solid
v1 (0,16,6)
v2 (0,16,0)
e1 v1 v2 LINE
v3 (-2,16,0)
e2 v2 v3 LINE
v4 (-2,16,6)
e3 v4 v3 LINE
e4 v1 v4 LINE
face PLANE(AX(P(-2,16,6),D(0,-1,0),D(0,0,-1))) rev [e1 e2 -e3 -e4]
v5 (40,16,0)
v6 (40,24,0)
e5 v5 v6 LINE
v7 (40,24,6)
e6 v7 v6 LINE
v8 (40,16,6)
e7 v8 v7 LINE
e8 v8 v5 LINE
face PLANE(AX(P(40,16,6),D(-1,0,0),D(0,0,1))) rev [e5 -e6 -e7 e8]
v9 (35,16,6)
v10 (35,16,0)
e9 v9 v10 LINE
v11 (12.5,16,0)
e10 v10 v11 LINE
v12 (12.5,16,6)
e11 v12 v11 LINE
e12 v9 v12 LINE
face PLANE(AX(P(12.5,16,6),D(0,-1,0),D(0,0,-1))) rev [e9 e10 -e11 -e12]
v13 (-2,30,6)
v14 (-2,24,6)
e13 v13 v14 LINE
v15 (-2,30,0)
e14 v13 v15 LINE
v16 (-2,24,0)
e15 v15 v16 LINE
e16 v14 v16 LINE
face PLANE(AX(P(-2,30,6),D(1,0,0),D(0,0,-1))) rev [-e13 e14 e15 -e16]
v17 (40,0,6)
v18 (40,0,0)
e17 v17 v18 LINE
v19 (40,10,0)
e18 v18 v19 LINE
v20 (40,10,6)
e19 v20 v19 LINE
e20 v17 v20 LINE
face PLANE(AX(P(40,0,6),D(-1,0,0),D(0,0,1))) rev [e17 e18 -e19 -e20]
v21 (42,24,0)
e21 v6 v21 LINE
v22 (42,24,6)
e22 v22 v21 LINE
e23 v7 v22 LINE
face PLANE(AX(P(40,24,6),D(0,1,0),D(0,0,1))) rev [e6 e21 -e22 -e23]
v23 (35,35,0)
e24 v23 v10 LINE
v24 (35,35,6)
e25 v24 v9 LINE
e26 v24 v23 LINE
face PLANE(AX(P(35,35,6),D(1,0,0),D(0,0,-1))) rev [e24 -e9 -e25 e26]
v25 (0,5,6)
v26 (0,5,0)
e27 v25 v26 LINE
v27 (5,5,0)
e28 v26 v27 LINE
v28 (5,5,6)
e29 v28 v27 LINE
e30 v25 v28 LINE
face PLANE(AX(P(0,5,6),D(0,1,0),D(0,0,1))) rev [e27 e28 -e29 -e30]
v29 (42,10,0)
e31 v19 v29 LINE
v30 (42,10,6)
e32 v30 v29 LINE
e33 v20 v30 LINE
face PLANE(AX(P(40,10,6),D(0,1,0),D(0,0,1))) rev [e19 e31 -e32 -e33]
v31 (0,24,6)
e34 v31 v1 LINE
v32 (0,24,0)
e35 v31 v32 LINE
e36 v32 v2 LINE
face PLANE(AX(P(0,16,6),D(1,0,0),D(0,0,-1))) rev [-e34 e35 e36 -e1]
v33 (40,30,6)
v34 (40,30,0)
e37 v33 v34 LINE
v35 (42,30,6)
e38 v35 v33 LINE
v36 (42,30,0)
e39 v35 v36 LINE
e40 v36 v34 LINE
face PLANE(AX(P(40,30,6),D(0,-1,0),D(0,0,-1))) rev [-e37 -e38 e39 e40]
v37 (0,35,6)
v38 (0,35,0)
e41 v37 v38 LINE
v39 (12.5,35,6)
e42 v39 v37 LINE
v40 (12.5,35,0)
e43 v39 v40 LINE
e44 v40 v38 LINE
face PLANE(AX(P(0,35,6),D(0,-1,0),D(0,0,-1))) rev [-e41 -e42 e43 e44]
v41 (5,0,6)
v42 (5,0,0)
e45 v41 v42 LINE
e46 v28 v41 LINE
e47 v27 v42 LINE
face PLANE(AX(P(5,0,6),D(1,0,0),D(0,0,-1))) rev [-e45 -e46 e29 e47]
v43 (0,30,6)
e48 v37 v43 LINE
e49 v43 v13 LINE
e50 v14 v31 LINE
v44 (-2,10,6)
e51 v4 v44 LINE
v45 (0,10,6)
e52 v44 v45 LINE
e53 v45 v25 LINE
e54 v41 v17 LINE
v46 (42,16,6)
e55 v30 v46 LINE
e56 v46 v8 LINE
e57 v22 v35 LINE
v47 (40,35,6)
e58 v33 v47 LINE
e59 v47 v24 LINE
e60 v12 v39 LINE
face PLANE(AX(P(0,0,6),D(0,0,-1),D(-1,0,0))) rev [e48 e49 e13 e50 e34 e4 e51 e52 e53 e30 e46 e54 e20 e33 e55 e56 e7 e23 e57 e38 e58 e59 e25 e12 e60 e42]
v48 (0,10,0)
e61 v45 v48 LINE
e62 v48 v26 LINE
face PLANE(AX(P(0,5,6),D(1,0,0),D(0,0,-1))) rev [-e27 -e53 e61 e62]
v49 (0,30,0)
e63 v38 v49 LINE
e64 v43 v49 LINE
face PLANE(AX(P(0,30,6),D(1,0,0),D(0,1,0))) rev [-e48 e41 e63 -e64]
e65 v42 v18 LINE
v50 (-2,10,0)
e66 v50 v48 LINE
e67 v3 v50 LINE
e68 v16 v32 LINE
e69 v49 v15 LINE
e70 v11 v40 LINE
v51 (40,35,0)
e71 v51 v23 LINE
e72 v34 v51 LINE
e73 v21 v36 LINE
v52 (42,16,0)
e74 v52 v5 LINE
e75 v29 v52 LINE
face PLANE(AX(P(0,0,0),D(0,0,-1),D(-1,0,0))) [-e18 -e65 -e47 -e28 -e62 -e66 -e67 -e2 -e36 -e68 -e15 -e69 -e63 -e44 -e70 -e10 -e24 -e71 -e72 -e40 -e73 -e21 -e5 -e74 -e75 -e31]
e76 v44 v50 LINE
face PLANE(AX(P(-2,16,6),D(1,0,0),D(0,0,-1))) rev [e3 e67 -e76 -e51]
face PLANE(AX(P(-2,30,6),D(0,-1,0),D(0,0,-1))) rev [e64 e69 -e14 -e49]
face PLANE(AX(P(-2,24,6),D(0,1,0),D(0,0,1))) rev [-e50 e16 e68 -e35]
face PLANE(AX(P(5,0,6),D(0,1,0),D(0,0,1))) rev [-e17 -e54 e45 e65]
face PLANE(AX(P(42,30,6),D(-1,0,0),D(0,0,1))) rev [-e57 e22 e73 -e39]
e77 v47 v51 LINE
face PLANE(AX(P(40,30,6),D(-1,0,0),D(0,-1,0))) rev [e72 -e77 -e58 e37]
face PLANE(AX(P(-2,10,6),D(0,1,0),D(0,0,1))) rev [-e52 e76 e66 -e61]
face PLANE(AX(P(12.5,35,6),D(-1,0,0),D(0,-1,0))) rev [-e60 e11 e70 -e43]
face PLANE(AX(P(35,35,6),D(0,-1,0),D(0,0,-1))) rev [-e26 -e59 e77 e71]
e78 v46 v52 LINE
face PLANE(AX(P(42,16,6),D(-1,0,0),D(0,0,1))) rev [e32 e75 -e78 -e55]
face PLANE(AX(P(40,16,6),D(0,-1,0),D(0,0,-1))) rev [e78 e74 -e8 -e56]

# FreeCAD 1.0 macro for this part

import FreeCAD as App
import Part
import Sketcher

V = App.Vector

doc = App.newDocument("Part")
body = doc.addObject("PartDesign::Body", "Body")

# Sketch on XY plane
sketch1 = body.newObject("Sketcher::SketchObject", "Sketch")
sketch1.AttachmentSupport = (doc.getObject("XY_Plane"), [""])
sketch1.MapMode = "FlatFace"
sketch1.addGeometry([
    Part.LineSegment(V(40, 35, 0), V(35, 35, 0)),  # 0
    Part.LineSegment(V(35, 35, 0), V(35, 16, 0)),  # 1
    Part.LineSegment(V(35, 16, 0), V(12.5, 16, 0)),  # 2
    Part.LineSegment(V(12.5, 16, 0), V(12.5, 35, 0)),  # 3
    Part.LineSegment(V(12.5, 35, 0), V(0, 35, 0)),  # 4
    Part.LineSegment(V(0, 35, 0), V(0, 30, 0)),  # 5
    Part.LineSegment(V(0, 30, 0), V(-2, 30, 0)),  # 6
    Part.LineSegment(V(-2, 30, 0), V(-2, 24, 0)),  # 7
    Part.LineSegment(V(-2, 24, 0), V(0, 24, 0)),  # 8
    Part.LineSegment(V(0, 24, 0), V(0, 16, 0)),  # 9
    Part.LineSegment(V(0, 16, 0), V(-2, 16, 0)),  # 10
    Part.LineSegment(V(-2, 16, 0), V(-2, 10, 0)),  # 11
    Part.LineSegment(V(-2, 10, 0), V(0, 10, 0)),  # 12
    Part.LineSegment(V(0, 10, 0), V(0, 5, 0)),  # 13
    Part.LineSegment(V(0, 5, 0), V(5, 5, 0)),  # 14
    Part.LineSegment(V(5, 5, 0), V(5, 0, 0)),  # 15
    Part.LineSegment(V(5, 0, 0), V(40, 0, 0)),  # 16
    Part.LineSegment(V(40, 0, 0), V(40, 10, 0)),  # 17
    Part.LineSegment(V(40, 10, 0), V(42, 10, 0)),  # 18
    Part.LineSegment(V(42, 10, 0), V(42, 16, 0)),  # 19
    Part.LineSegment(V(42, 16, 0), V(40, 16, 0)),  # 20
    Part.LineSegment(V(40, 16, 0), V(40, 24, 0)),  # 21
    Part.LineSegment(V(40, 24, 0), V(42, 24, 0)),  # 22
    Part.LineSegment(V(42, 24, 0), V(42, 30, 0)),  # 23
    Part.LineSegment(V(42, 30, 0), V(40, 30, 0)),  # 24
    Part.LineSegment(V(40, 30, 0), V(40, 35, 0)),  # 25
], False)
sketch1.addConstraint([
    Sketcher.Constraint("Coincident", 0, 2, 1, 1),
    Sketcher.Constraint("Coincident", 1, 2, 2, 1),
    Sketcher.Constraint("Coincident", 2, 2, 3, 1),
    Sketcher.Constraint("Coincident", 3, 2, 4, 1),
    Sketcher.Constraint("Coincident", 4, 2, 5, 1),
    Sketcher.Constraint("Coincident", 5, 2, 6, 1),
    Sketcher.Constraint("Coincident", 6, 2, 7, 1),
    Sketcher.Constraint("Coincident", 7, 2, 8, 1),
    Sketcher.Constraint("Coincident", 8, 2, 9, 1),
    Sketcher.Constraint("Coincident", 9, 2, 10, 1),
    Sketcher.Constraint("Coincident", 10, 2, 11, 1),
    Sketcher.Constraint("Coincident", 11, 2, 12, 1),
    Sketcher.Constraint("Coincident", 12, 2, 13, 1),
    Sketcher.Constraint("Coincident", 13, 2, 14, 1),
    Sketcher.Constraint("Coincident", 14, 2, 15, 1),
    Sketcher.Constraint("Coincident", 15, 2, 16, 1),
    Sketcher.Constraint("Coincident", 16, 2, 17, 1),
    Sketcher.Constraint("Coincident", 17, 2, 18, 1),
    Sketcher.Constraint("Coincident", 18, 2, 19, 1),
    Sketcher.Constraint("Coincident", 19, 2, 20, 1),
    Sketcher.Constraint("Coincident", 20, 2, 21, 1),
    Sketcher.Constraint("Coincident", 21, 2, 22, 1),
    Sketcher.Constraint("Coincident", 22, 2, 23, 1),
    Sketcher.Constraint("Coincident", 23, 2, 24, 1),
    Sketcher.Constraint("Coincident", 24, 2, 25, 1),
    Sketcher.Constraint("Coincident", 25, 2, 0, 1),
    Sketcher.Constraint("Horizontal", 0),
    Sketcher.Constraint("Vertical", 1),
    Sketcher.Constraint("Horizontal", 2),
    Sketcher.Constraint("Vertical", 3),
    Sketcher.Constraint("Horizontal", 4),
    Sketcher.Constraint("Vertical", 5),
    Sketcher.Constraint("Horizontal", 6),
    Sketcher.Constraint("Vertical", 7),
    Sketcher.Constraint("Horizontal", 8),
    Sketcher.Constraint("Vertical", 9),
    Sketcher.Constraint("Horizontal", 10),
    Sketcher.Constraint("Vertical", 11),
    Sketcher.Constraint("Horizontal", 12),
    Sketcher.Constraint("Vertical", 13),
    Sketcher.Constraint("Horizontal", 14),
    Sketcher.Constraint("Vertical", 15),
    Sketcher.Constraint("Horizontal", 16),
    Sketcher.Constraint("Vertical", 17),
    Sketcher.Constraint("Horizontal", 18),
    Sketcher.Constraint("Vertical", 19),
    Sketcher.Constraint("Horizontal", 20),
    Sketcher.Constraint("Vertical", 21),
    Sketcher.Constraint("Horizontal", 22),
    Sketcher.Constraint("Vertical", 23),
    Sketcher.Constraint("Horizontal", 24),
    Sketcher.Constraint("Vertical", 25),
    Sketcher.Constraint("PointOnObject", 4, 2, -2),
    Sketcher.Constraint("PointOnObject", 8, 2, -2),
    Sketcher.Constraint("PointOnObject", 12, 2, -2),
    Sketcher.Constraint("PointOnObject", 15, 2, -1),
    Sketcher.Constraint("Horizontal", 0, 2, 3, 2),
    Sketcher.Constraint("Horizontal", 2, 2, 9, 2),
    Sketcher.Constraint("Horizontal", 12, 2, 17, 2),
    Sketcher.Constraint("Horizontal", 10, 2, 19, 2),
    Sketcher.Constraint("Horizontal", 8, 2, 21, 2),
    Sketcher.Constraint("Horizontal", 6, 2, 23, 2),
    Sketcher.Constraint("Vertical", 7, 2, 10, 2),
    Sketcher.Constraint("Vertical", 17, 2, 20, 2),
    Sketcher.Constraint("Vertical", 19, 2, 22, 2),
    Sketcher.Constraint("Vertical", 21, 2, 24, 2),
    Sketcher.Constraint("Equal", 0, 14),
    Sketcher.Constraint("Equal", 12, 18),
    Sketcher.Constraint("Equal", 14, 5),
    Sketcher.Constraint("Equal", 7, 11),
    Sketcher.Constraint("Equal", 5, 13),
    Sketcher.Constraint("Equal", 13, 15),
    Sketcher.Constraint("DistanceX", 0, 2, 0, 1, 5.0),
    Sketcher.Constraint("DistanceX", 6, 2, 6, 1, 2.0),
    Sketcher.Constraint("DistanceX", 16, 1, 16, 2, 35.0),
    Sketcher.Constraint("DistanceY", 1, 2, 1, 1, 19.0),
    Sketcher.Constraint("DistanceY", 7, 2, 7, 1, 6.0),
    Sketcher.Constraint("DistanceX", 2, 2, 2, 1, 22.5),
])
pad1 = body.newObject("PartDesign::Pad", "Pad")
pad1.Profile = sketch1
pad1.Length = 6

doc.recompute()
